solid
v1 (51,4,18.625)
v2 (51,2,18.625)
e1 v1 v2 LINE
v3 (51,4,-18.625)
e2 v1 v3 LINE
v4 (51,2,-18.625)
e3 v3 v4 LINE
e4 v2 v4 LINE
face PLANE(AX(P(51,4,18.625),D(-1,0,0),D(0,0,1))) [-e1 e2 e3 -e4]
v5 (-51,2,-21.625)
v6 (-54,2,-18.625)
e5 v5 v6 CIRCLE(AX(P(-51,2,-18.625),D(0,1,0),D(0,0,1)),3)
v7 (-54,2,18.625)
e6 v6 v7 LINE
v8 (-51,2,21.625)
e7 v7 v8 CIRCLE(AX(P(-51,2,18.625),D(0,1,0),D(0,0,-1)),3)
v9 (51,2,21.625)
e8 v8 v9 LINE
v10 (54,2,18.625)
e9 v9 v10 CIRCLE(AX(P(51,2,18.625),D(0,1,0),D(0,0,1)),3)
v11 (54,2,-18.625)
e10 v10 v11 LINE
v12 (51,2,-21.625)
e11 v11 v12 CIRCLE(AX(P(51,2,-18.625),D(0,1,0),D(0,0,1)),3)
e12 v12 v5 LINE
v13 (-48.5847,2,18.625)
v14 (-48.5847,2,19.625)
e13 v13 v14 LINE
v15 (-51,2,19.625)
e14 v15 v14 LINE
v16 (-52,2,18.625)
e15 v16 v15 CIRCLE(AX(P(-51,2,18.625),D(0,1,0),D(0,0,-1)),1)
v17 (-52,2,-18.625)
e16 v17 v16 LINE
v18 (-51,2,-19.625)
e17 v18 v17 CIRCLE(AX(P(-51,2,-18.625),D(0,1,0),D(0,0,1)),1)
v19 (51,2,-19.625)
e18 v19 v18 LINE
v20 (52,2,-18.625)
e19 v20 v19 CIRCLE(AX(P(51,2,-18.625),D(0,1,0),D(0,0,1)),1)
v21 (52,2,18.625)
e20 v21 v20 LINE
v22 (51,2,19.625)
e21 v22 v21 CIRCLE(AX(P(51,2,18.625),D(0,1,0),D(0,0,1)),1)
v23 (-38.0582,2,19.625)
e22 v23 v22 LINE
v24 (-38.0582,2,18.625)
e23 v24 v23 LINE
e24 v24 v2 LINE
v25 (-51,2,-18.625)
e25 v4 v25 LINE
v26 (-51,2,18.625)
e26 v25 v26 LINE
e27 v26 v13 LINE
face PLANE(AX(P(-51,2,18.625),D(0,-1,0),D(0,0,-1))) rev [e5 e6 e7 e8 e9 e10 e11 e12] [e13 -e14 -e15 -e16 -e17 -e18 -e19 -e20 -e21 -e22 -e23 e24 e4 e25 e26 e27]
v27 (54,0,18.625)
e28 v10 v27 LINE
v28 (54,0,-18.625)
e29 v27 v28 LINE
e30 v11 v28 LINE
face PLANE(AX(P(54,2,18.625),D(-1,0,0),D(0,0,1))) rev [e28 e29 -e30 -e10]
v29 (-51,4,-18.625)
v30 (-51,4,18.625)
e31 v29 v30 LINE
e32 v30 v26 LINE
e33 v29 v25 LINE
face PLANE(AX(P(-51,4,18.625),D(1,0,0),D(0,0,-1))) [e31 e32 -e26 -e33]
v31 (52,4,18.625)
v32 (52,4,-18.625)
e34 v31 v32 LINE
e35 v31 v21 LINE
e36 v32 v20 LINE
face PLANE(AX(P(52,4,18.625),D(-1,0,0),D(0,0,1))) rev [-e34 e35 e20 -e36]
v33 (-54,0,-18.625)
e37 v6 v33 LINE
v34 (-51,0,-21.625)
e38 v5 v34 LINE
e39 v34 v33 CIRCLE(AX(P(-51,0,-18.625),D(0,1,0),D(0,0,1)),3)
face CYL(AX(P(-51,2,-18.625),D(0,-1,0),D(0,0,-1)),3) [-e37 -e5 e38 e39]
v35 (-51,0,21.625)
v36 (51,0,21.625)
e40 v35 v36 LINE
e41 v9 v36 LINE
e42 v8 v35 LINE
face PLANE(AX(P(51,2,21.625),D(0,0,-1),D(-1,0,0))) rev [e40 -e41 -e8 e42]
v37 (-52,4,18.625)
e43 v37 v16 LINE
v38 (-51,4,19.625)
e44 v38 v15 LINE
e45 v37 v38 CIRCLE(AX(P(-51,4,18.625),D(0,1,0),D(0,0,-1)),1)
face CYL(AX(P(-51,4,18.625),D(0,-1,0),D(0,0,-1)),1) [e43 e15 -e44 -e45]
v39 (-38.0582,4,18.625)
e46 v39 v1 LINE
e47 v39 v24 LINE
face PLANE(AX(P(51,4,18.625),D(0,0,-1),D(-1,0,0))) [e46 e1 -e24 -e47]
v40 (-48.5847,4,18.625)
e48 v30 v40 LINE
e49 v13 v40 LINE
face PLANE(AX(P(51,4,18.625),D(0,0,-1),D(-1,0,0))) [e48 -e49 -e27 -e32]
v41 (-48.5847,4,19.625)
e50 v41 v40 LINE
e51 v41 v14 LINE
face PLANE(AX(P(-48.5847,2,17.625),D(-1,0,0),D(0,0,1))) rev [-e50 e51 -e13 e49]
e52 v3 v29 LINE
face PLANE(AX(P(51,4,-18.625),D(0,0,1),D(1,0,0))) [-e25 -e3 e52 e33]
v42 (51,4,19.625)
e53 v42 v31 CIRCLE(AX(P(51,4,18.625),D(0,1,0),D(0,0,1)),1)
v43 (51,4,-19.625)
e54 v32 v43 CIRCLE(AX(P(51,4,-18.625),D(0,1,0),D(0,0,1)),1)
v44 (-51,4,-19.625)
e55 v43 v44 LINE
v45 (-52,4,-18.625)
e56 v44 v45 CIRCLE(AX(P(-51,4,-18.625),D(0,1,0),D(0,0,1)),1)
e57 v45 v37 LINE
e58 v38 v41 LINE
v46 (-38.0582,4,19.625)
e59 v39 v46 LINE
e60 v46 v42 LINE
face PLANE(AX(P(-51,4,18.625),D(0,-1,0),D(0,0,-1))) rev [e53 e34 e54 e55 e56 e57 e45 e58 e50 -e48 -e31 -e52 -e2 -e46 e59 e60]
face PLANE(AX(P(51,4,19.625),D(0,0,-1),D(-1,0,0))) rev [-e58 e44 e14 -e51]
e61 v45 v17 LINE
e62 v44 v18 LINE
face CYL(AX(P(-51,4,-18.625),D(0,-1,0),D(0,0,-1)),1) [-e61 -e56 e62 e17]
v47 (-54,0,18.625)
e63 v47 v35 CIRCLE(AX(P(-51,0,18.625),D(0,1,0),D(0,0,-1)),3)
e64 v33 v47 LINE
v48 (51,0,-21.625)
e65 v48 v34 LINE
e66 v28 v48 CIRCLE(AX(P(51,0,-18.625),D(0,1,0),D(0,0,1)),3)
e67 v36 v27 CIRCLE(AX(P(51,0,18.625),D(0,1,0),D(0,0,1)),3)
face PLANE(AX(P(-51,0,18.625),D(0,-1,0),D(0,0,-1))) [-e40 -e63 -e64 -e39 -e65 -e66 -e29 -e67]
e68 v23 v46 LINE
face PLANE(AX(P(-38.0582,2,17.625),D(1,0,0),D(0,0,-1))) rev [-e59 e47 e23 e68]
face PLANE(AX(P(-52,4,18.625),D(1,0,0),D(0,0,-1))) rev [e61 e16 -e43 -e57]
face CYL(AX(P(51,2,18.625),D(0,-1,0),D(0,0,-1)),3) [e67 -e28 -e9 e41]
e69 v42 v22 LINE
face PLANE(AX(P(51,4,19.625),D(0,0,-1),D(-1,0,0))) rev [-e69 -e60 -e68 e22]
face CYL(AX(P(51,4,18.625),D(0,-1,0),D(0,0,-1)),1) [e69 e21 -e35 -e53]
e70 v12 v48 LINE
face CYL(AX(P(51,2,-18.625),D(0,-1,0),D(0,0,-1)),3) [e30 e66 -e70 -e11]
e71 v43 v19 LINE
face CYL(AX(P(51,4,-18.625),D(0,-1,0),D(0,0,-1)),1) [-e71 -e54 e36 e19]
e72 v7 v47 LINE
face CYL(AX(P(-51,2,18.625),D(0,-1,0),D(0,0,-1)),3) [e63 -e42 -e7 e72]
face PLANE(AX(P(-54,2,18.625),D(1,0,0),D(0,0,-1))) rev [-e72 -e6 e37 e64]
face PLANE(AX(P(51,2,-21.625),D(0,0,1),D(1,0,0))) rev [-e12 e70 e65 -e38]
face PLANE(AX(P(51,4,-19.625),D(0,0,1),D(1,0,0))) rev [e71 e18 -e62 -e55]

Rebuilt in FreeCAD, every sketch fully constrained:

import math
import FreeCAD as App
import Part
import Sketcher

V = App.Vector


def add_polygon(sketch, points):
    """Adds a closed chain of lines whose ends are joined by coincident constraints."""
    first, n = sketch.GeometryCount, len(points)
    for a, b in zip(points, points[1:] + points[:1]):
        sketch.addGeometry(Part.LineSegment(App.Vector(*a, 0), App.Vector(*b, 0)), False)
    for i in range(n):
        sketch.addConstraint(Sketcher.Constraint("Coincident", first + i, 2, first + (i + 1) % n, 1))

doc = App.newDocument("Part")
body = doc.addObject("PartDesign::Body", "Body")

# Sketch on XZ plane
sketch1 = body.newObject("Sketcher::SketchObject", "Sketch")
sketch1.AttachmentSupport = (doc.getObject("XZ_Plane"), [""])
sketch1.MapMode = "FlatFace"
sketch1.addGeometry(Part.LineSegment(V(-51, 21.625, 0), V(51, 21.625, 0)), False)
sketch1.addGeometry(Part.ArcOfCircle(Part.Circle(V(51, 18.625, 0), V(0, 0, 1), 3), math.radians(0), math.radians(90)), False)
sketch1.addGeometry(Part.LineSegment(V(54, 18.625, 0), V(54, -18.625, 0)), False)
sketch1.addGeometry(Part.ArcOfCircle(Part.Circle(V(51, -18.625, 0), V(0, 0, 1), 3), math.radians(-90), math.radians(0)), False)
sketch1.addGeometry(Part.LineSegment(V(51, -21.625, 0), V(-51, -21.625, 0)), False)
sketch1.addGeometry(Part.ArcOfCircle(Part.Circle(V(-51, -18.625, 0), V(0, 0, 1), 3), math.radians(180), math.radians(270)), False)
sketch1.addGeometry(Part.LineSegment(V(-54, -18.625, 0), V(-54, 18.625, 0)), False)
sketch1.addGeometry(Part.ArcOfCircle(Part.Circle(V(-51, 18.625, 0), V(0, 0, 1), 3), math.radians(90), math.radians(180)), False)
sketch1.addConstraint(Sketcher.Constraint("Tangent", 0, 2, 1, 2))
sketch1.addConstraint(Sketcher.Constraint("Tangent", 1, 1, 2, 1))
sketch1.addConstraint(Sketcher.Constraint("Tangent", 2, 2, 3, 2))
sketch1.addConstraint(Sketcher.Constraint("Tangent", 3, 1, 4, 1))
sketch1.addConstraint(Sketcher.Constraint("Tangent", 4, 2, 5, 2))
sketch1.addConstraint(Sketcher.Constraint("Tangent", 5, 1, 6, 1))
sketch1.addConstraint(Sketcher.Constraint("Tangent", 6, 2, 7, 2))
sketch1.addConstraint(Sketcher.Constraint("Tangent", 7, 1, 0, 1))
sketch1.addConstraint(Sketcher.Constraint("Horizontal", 0))
sketch1.addConstraint(Sketcher.Constraint("Vertical", 2))
sketch1.addConstraint(Sketcher.Constraint("Horizontal", 4))
sketch1.addConstraint(Sketcher.Constraint("Vertical", 6))
sketch1.addConstraint(Sketcher.Constraint("Equal", 1, 3))
sketch1.addConstraint(Sketcher.Constraint("Equal", 3, 5))
sketch1.addConstraint(Sketcher.Constraint("Equal", 5, 7))
sketch1.addConstraint(Sketcher.Constraint("Symmetric", 1, 3, 5, 3, -1, 1))
sketch1.addConstraint(Sketcher.Constraint("Radius", 1, 3.0))
sketch1.addConstraint(Sketcher.Constraint("DistanceX", 0, 1, 0, 2, 102.0))
sketch1.addConstraint(Sketcher.Constraint("DistanceY", 2, 2, 2, 1, 37.25))
pad1 = body.newObject("PartDesign::Pad", "Pad")
pad1.Profile = sketch1
pad1.Length = 2
pad1.Reversed = True

# Sketch on XZ plane
sketch2 = body.newObject("Sketcher::SketchObject", "Sketch001")
sketch2.AttachmentSupport = (doc.getObject("XZ_Plane"), [""])
sketch2.MapMode = "FlatFace"
sketch2.AttachmentOffset = App.Placement(V(0, 0, -2), App.Rotation())
sketch2.addGeometry(Part.LineSegment(V(-51, 19.625, 0), V(51, 19.625, 0)), False)  # 0
sketch2.addGeometry(Part.ArcOfCircle(Part.Circle(V(51, 18.625, 0), V(0, 0, 1), 1), math.radians(0), math.radians(90)), False)  # 1
sketch2.addGeometry(Part.LineSegment(V(52, 18.625, 0), V(52, -18.625, 0)), False)  # 2
sketch2.addGeometry(Part.ArcOfCircle(Part.Circle(V(51, -18.625, 0), V(0, 0, 1), 1), math.radians(-90), math.radians(0)), False)  # 3
sketch2.addGeometry(Part.LineSegment(V(51, -19.625, 0), V(-51, -19.625, 0)), False)  # 4
sketch2.addGeometry(Part.ArcOfCircle(Part.Circle(V(-51, -18.625, 0), V(0, 0, 1), 1), math.radians(-180), math.radians(-90)), False)  # 5
sketch2.addGeometry(Part.LineSegment(V(-52, -18.625, 0), V(-52, 18.625, 0)), False)  # 6
sketch2.addGeometry(Part.ArcOfCircle(Part.Circle(V(-51, 18.625, 0), V(0, 0, 1), 1), math.radians(90), math.radians(180)), False)  # 7
add_polygon(sketch2, [(-51, 18.625), (-51, -18.625), (51, -18.625), (51, 18.625)])  # lines 8-11
sketch2.addConstraint(Sketcher.Constraint("Tangent", 0, 2, 1, 2))
sketch2.addConstraint(Sketcher.Constraint("Tangent", 1, 1, 2, 1))
sketch2.addConstraint(Sketcher.Constraint("Tangent", 2, 2, 3, 2))
sketch2.addConstraint(Sketcher.Constraint("Tangent", 3, 1, 4, 1))
sketch2.addConstraint(Sketcher.Constraint("Tangent", 4, 2, 5, 2))
sketch2.addConstraint(Sketcher.Constraint("Tangent", 5, 1, 6, 1))
sketch2.addConstraint(Sketcher.Constraint("Tangent", 6, 2, 7, 2))
sketch2.addConstraint(Sketcher.Constraint("Tangent", 7, 1, 0, 1))
sketch2.addConstraint(Sketcher.Constraint("Horizontal", 0))
sketch2.addConstraint(Sketcher.Constraint("Vertical", 2))
sketch2.addConstraint(Sketcher.Constraint("Horizontal", 4))
sketch2.addConstraint(Sketcher.Constraint("Vertical", 6))
sketch2.addConstraint(Sketcher.Constraint("Vertical", 8))
sketch2.addConstraint(Sketcher.Constraint("Horizontal", 9))
sketch2.addConstraint(Sketcher.Constraint("Vertical", 10))
sketch2.addConstraint(Sketcher.Constraint("Horizontal", 11))
sketch2.addConstraint(Sketcher.Constraint("Coincident", 8, 2, 5, 3))
sketch2.addConstraint(Sketcher.Constraint("Coincident", 9, 2, 3, 3))
sketch2.addConstraint(Sketcher.Constraint("Coincident", 10, 2, 1, 3))
sketch2.addConstraint(Sketcher.Constraint("Equal", 5, 7))
sketch2.addConstraint(Sketcher.Constraint("Symmetric", 1, 3, 5, 3, -1, 1))
sketch2.addConstraint(Sketcher.Constraint("Radius", 1, 1.0))
sketch2.addConstraint(Sketcher.Constraint("DistanceX", 0, 1, 0, 2, 102.0))
sketch2.addConstraint(Sketcher.Constraint("DistanceY", 2, 2, 2, 1, 37.25))
pad2 = body.newObject("PartDesign::Pad", "Pad001")
pad2.Profile = sketch2
pad2.Length = 2
pad2.Reversed = True

# Sketch on XY plane
sketch3 = body.newObject("Sketcher::SketchObject", "Sketch002")
sketch3.AttachmentSupport = (doc.getObject("XY_Plane"), [""])
sketch3.MapMode = "FlatFace"
sketch3.AttachmentOffset = App.Placement(V(0, 0, 19.625), App.Rotation())
add_polygon(sketch3, [(-48.5847, 5.907168), (-48.5847, 2), (-38.0582, 2), (-38.0582, 5.907168)])  # lines 0-3
sketch3.addConstraint(Sketcher.Constraint("Vertical", 0))
sketch3.addConstraint(Sketcher.Constraint("Horizontal", 1))
sketch3.addConstraint(Sketcher.Constraint("Vertical", 2))
sketch3.addConstraint(Sketcher.Constraint("Horizontal", 3))
sketch3.addConstraint(Sketcher.Constraint("DistanceY", -1, 1, 0, 2, 2.0))
sketch3.addConstraint(Sketcher.Constraint("DistanceX", 1, 1, 1, 2, 10.5265))
sketch3.addConstraint(Sketcher.Constraint("DistanceX", 0, 2, -1, 1, 48.5847))
sketch3.addConstraint(Sketcher.Constraint("DistanceY", 0, 2, 0, 1, 3.907168))
pocket1 = body.newObject("PartDesign::Pocket", "Pocket")
pocket1.Profile = sketch3
pocket1.Length = 2

doc.recompute()
